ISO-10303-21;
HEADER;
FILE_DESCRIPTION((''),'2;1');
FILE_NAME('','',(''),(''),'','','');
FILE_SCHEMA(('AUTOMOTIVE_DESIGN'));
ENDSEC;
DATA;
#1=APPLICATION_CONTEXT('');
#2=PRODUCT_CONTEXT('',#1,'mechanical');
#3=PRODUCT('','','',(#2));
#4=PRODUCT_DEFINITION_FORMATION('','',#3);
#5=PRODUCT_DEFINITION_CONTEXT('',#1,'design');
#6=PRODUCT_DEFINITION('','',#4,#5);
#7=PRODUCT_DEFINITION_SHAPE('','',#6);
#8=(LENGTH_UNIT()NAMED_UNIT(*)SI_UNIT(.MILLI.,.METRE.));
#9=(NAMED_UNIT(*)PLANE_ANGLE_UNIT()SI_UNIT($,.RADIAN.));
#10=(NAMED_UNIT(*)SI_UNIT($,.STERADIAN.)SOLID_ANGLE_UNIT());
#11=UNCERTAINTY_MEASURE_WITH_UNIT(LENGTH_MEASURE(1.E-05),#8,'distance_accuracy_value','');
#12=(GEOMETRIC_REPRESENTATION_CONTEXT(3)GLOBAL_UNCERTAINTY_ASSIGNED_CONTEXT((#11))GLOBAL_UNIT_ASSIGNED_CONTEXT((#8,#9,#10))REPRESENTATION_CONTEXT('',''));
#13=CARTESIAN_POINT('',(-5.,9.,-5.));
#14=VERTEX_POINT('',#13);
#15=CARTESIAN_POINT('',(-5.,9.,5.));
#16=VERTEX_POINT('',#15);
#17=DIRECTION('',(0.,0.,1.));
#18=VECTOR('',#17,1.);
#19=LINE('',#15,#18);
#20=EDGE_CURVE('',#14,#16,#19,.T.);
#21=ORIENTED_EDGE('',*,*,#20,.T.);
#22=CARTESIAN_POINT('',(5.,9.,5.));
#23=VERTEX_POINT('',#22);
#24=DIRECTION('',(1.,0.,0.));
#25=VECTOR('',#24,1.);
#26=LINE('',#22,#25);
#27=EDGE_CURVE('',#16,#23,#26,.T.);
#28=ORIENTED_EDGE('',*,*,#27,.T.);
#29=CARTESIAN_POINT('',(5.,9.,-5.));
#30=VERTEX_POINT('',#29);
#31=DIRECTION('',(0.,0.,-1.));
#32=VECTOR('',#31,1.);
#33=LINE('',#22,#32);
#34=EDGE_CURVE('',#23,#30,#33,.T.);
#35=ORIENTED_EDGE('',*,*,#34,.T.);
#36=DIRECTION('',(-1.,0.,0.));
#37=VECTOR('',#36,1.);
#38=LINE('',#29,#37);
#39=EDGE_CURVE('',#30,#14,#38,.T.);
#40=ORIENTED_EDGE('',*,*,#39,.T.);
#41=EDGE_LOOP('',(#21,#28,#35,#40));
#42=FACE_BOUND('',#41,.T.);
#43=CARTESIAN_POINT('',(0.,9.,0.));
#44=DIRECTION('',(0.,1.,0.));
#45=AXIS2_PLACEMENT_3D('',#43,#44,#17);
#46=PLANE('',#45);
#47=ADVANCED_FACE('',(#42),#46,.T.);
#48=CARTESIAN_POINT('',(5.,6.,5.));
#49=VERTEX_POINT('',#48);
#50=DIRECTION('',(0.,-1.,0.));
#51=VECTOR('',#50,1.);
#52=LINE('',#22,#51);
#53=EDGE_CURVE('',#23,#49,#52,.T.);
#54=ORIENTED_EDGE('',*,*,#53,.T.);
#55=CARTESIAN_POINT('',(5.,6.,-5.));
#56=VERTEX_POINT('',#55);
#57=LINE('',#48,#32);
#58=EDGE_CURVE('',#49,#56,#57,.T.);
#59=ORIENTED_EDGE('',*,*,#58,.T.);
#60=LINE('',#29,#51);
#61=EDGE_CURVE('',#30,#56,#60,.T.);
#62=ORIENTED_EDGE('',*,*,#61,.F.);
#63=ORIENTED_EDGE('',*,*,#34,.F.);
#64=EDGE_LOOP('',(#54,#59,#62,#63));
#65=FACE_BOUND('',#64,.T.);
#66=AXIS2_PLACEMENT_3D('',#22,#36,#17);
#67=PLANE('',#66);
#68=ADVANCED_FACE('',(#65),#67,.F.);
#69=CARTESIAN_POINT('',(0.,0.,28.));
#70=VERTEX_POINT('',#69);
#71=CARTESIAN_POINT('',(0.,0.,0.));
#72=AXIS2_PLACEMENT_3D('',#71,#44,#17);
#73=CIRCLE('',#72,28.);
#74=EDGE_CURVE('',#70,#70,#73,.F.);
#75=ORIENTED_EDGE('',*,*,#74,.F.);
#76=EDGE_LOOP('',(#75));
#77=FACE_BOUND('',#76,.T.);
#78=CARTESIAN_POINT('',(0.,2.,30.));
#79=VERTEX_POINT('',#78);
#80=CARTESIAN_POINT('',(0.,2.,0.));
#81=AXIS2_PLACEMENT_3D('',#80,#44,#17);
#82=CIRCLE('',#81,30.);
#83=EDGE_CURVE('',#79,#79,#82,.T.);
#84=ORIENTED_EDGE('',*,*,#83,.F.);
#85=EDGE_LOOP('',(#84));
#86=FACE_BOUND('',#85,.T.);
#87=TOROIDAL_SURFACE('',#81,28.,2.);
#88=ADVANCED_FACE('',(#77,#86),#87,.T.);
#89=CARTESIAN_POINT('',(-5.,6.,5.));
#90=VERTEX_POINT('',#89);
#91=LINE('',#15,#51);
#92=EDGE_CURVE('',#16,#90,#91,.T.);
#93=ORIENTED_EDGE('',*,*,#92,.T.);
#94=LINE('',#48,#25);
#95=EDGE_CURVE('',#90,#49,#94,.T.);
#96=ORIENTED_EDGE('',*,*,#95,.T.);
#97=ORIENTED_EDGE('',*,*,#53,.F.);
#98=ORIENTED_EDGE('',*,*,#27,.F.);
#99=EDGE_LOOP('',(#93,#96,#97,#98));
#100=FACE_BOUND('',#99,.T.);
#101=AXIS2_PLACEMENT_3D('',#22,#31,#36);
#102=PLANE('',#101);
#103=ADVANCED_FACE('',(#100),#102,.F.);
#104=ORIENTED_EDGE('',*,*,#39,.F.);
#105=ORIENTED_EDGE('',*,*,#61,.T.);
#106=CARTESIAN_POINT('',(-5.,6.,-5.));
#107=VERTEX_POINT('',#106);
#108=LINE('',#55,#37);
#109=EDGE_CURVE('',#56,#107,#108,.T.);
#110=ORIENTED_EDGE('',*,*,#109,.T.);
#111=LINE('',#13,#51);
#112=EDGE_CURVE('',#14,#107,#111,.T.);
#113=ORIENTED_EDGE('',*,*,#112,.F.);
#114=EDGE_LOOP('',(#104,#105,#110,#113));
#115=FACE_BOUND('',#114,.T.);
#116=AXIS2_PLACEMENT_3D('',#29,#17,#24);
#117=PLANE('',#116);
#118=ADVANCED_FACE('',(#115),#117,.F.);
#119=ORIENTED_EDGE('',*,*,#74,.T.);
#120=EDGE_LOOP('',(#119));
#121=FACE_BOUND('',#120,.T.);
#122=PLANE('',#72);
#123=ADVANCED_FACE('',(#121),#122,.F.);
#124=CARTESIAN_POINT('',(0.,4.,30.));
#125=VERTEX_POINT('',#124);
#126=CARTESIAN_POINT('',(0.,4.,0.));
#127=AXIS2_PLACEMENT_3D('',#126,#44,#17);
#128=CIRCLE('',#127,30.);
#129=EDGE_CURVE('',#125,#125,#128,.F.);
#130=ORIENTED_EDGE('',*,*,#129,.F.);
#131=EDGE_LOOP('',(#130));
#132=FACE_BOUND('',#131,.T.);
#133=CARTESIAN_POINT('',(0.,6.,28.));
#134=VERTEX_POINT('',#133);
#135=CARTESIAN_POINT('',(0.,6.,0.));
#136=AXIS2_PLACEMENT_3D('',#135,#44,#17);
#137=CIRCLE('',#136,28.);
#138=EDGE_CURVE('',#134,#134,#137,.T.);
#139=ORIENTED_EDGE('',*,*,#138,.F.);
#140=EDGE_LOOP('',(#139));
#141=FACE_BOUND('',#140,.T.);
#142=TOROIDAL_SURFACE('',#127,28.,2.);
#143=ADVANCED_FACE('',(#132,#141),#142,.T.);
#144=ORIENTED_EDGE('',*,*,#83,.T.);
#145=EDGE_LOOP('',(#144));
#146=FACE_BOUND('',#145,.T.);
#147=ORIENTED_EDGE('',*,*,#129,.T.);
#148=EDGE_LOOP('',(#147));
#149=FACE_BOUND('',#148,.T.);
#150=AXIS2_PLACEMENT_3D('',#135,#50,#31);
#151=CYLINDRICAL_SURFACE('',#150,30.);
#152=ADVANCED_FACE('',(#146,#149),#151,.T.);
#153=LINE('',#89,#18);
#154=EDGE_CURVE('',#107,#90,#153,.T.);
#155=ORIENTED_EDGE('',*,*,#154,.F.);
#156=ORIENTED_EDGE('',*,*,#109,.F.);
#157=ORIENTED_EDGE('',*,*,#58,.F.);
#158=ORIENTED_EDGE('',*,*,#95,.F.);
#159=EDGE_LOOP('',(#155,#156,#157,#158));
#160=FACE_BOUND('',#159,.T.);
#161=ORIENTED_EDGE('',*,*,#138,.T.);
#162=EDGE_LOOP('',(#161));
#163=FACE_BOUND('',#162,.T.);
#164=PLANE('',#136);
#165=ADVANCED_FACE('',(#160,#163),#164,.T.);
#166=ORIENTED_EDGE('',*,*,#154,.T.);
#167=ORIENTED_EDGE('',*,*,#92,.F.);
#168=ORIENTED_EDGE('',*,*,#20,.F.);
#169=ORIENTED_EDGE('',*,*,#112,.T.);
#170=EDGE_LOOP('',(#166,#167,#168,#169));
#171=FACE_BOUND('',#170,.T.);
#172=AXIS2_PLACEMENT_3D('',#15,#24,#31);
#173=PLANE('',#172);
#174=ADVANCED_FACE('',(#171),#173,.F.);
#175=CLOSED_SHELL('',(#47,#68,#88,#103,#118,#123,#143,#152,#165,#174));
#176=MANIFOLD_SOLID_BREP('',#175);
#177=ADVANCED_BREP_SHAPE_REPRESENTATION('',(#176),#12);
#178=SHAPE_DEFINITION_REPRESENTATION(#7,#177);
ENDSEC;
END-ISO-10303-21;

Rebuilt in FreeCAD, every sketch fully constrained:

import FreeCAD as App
import Part
import Sketcher


def edges_at(feature, points):
    """Names of the edges that pass closest to the given points."""
    edges = feature.Shape.Edges
    near = lambda p: min(range(len(edges)), key=lambda i: edges[i].distToShape(Part.Vertex(*p))[0])
    return sorted({f"Edge{near(p) + 1}" for p in points})

doc = App.newDocument("Part")
body = doc.addObject("PartDesign::Body", "Body")

sketch1 = body.newObject("Sketcher::SketchObject", "Sketch")
sketch1.AttachmentSupport = (doc.getObject("XZ_Plane"), [""])
sketch1.MapMode = "FlatFace"
sketch1.addGeometry(Part.Circle(App.Vector(0, 0, 0), App.Vector(0, 0, 1), 30), False)
sketch1.addConstraint([
    Sketcher.Constraint("Coincident", 0, 3, -1, 1),
    Sketcher.Constraint("Diameter", 0, 60.0),
])
pad1 = body.newObject("PartDesign::Pad", "Pad")
pad1.Profile = sketch1
pad1.Length = 6
pad1.Reversed = True
doc.recompute()

fillet = body.newObject("PartDesign::Fillet", "Fillet")
fillet.Base = (pad1, edges_at(pad1, [(0, 0, -30), (0, 6, -30)]))
fillet.Radius = 2

sketch2 = body.newObject("Sketcher::SketchObject", "Sketch001")
sketch2.AttachmentSupport = (doc.getObject("XZ_Plane"), [""])
sketch2.MapMode = "FlatFace"
sketch2.AttachmentOffset = App.Placement(App.Vector(0, 0, -6), App.Rotation())
sketch2.addGeometry([
    Part.LineSegment(App.Vector(-5, -5, 0), App.Vector(-5, 5, 0)),
    Part.LineSegment(App.Vector(-5, 5, 0), App.Vector(5, 5, 0)),
    Part.LineSegment(App.Vector(5, 5, 0), App.Vector(5, -5, 0)),
    Part.LineSegment(App.Vector(5, -5, 0), App.Vector(-5, -5, 0)),
], False)
sketch2.addConstraint([
    Sketcher.Constraint("Coincident", 0, 2, 1, 1),
    Sketcher.Constraint("Coincident", 1, 2, 2, 1),
    Sketcher.Constraint("Coincident", 2, 2, 3, 1),
    Sketcher.Constraint("Coincident", 3, 2, 0, 1),
    Sketcher.Constraint("Vertical", 0),
    Sketcher.Constraint("Horizontal", 1),
    Sketcher.Constraint("Vertical", 2),
    Sketcher.Constraint("Horizontal", 3),
    Sketcher.Constraint("Symmetric", 0, 2, 2, 2, -1, 1),
    Sketcher.Constraint("Equal", 3, 0),
    Sketcher.Constraint("DistanceX", 1, 1, 1, 2, 10.0),
])
pad2 = body.newObject("PartDesign::Pad", "Pad001")
pad2.Profile = sketch2
pad2.Length = 3
pad2.Reversed = True

doc.recompute()
